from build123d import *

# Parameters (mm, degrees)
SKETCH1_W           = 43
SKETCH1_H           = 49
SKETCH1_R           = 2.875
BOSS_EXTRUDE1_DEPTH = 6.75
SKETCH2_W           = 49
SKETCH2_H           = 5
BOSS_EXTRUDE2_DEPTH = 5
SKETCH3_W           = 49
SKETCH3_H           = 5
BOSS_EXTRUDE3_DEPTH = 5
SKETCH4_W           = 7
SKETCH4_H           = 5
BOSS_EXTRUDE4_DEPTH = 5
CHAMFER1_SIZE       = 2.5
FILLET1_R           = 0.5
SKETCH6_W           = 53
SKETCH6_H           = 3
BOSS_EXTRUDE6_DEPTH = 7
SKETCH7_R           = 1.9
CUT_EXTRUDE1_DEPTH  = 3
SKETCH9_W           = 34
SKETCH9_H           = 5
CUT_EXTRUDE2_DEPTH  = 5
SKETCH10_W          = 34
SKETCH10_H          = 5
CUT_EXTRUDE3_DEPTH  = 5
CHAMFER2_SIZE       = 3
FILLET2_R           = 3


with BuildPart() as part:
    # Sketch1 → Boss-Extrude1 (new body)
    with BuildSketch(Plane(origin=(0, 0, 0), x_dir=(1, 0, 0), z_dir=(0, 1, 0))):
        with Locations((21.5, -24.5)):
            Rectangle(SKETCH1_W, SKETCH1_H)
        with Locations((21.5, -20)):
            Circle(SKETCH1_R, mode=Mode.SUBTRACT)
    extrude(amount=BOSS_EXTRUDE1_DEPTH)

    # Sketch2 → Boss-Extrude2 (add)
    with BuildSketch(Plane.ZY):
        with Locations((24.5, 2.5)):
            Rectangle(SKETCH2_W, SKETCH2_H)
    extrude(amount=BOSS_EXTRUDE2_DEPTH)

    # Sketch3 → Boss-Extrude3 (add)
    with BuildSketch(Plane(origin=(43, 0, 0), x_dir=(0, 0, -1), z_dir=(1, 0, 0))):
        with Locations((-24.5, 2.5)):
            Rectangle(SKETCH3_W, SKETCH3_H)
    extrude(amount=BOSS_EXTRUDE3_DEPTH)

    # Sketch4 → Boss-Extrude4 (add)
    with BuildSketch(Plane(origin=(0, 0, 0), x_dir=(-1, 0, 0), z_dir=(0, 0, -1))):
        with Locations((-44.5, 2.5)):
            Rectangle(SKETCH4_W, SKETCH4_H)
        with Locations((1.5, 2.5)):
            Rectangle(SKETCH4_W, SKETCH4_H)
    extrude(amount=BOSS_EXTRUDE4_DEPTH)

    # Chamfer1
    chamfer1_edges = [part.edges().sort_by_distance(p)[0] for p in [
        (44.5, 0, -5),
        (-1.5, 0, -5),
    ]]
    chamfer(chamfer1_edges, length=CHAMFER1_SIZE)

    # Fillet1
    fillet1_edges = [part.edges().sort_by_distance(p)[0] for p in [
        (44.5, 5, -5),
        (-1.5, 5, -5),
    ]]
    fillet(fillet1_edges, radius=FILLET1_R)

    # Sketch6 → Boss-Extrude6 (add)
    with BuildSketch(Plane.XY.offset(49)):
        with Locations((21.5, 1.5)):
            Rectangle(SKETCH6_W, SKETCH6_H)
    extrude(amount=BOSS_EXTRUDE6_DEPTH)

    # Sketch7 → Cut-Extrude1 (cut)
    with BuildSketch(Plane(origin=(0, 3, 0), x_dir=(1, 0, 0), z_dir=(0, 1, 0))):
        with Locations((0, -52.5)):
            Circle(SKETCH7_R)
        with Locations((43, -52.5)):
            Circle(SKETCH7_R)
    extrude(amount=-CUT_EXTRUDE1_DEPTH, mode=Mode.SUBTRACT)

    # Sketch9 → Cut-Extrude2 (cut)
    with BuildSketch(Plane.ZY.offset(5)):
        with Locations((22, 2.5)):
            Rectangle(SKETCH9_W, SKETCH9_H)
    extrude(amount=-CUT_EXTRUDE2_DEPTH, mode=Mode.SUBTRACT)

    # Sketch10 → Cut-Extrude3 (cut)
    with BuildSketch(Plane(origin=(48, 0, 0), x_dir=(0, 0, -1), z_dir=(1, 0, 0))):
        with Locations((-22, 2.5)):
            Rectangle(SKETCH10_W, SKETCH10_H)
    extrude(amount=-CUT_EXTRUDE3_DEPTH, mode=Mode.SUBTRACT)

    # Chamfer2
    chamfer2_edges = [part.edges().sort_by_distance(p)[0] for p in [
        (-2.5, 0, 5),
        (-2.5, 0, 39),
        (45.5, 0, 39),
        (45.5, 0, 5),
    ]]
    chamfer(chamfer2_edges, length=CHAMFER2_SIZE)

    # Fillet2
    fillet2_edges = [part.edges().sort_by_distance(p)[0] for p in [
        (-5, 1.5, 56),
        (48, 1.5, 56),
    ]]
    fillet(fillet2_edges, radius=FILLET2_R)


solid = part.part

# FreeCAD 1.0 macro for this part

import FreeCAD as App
import Part
import Sketcher


def edges_at(feature, points):
    """Names of the edges that pass closest to the given points."""
    edges = feature.Shape.Edges
    near = lambda p: min(range(len(edges)), key=lambda i: edges[i].distToShape(Part.Vertex(*p))[0])
    return sorted({f"Edge{near(p) + 1}" for p in points})

doc = App.newDocument("Part")
body = doc.addObject("PartDesign::Body", "Body")

sketch1 = body.newObject("Sketcher::SketchObject", "Sketch")
sketch1.AttachmentSupport = (doc.getObject("XZ_Plane"), [""])
sketch1.MapMode = "FlatFace"
sketch1.addGeometry(Part.LineSegment(App.Vector(0, 0, 0), App.Vector(0, 49, 0)), False)
sketch1.addGeometry(Part.LineSegment(App.Vector(0, 49, 0), App.Vector(43, 49, 0)), False)
sketch1.addGeometry(Part.LineSegment(App.Vector(43, 49, 0), App.Vector(43, 0, 0)), False)
sketch1.addGeometry(Part.LineSegment(App.Vector(43, 0, 0), App.Vector(0, 0, 0)), False)
sketch1.addGeometry(Part.Circle(App.Vector(21.5, 20, 0), App.Vector(0, 0, 1), 2.9), False)
sketch1.addConstraint(Sketcher.Constraint("Coincident", 0, 2, 1, 1))
sketch1.addConstraint(Sketcher.Constraint("Coincident", 1, 2, 2, 1))
sketch1.addConstraint(Sketcher.Constraint("Coincident", 2, 2, 3, 1))
sketch1.addConstraint(Sketcher.Constraint("Coincident", 3, 2, 0, 1))
sketch1.addConstraint(Sketcher.Constraint("Vertical", 0))
sketch1.addConstraint(Sketcher.Constraint("Horizontal", 1))
sketch1.addConstraint(Sketcher.Constraint("Vertical", 2))
sketch1.addConstraint(Sketcher.Constraint("Horizontal", 3))
sketch1.addConstraint(Sketcher.Constraint("Coincident", 3, 2, -1, 1))
sketch1.addConstraint(Sketcher.Constraint("Diameter", 4, 5.75))
sketch1.addConstraint(Sketcher.Constraint("DistanceX", 1, 1, 1, 2, 43.0))
sketch1.addConstraint(Sketcher.Constraint("DistanceY", 0, 1, 0, 2, 49.0))
sketch1.addConstraint(Sketcher.Constraint("DistanceY", -1, 1, 4, 3, 20.0))
sketch1.addConstraint(Sketcher.Constraint("DistanceX", -1, 1, 4, 3, 21.5))
pad1 = body.newObject("PartDesign::Pad", "Pad")
pad1.Profile = sketch1
pad1.Length = 6.75
pad1.Reversed = True

sketch2 = body.newObject("Sketcher::SketchObject", "Sketch001")
sketch2.AttachmentSupport = (doc.getObject("YZ_Plane"), [""])
sketch2.MapMode = "FlatFace"
sketch2.addGeometry(Part.LineSegment(App.Vector(5, 0, 0), App.Vector(0, 0, 0)), False)
sketch2.addGeometry(Part.LineSegment(App.Vector(0, 0, 0), App.Vector(0, 49, 0)), False)
sketch2.addGeometry(Part.LineSegment(App.Vector(0, 49, 0), App.Vector(5, 49, 0)), False)
sketch2.addGeometry(Part.LineSegment(App.Vector(5, 49, 0), App.Vector(5, 0, 0)), False)
sketch2.addConstraint(Sketcher.Constraint("Coincident", 0, 2, 1, 1))
sketch2.addConstraint(Sketcher.Constraint("Coincident", 1, 2, 2, 1))
sketch2.addConstraint(Sketcher.Constraint("Coincident", 2, 2, 3, 1))
sketch2.addConstraint(Sketcher.Constraint("Coincident", 3, 2, 0, 1))
sketch2.addConstraint(Sketcher.Constraint("Horizontal", 0))
sketch2.addConstraint(Sketcher.Constraint("Vertical", 1))
sketch2.addConstraint(Sketcher.Constraint("Horizontal", 2))
sketch2.addConstraint(Sketcher.Constraint("Vertical", 3))
sketch2.addConstraint(Sketcher.Constraint("Coincident", 0, 2, -1, 1))
sketch2.addConstraint(Sketcher.Constraint("DistanceX", 0, 2, 0, 1, 5.0))
sketch2.addConstraint(Sketcher.Constraint("DistanceY", 1, 1, 1, 2, 49.0))
pad2 = body.newObject("PartDesign::Pad", "Pad001")
pad2.Profile = sketch2
pad2.Length = 5
pad2.Reversed = True

sketch3 = body.newObject("Sketcher::SketchObject", "Sketch002")
sketch3.AttachmentSupport = (doc.getObject("YZ_Plane"), [""])
sketch3.MapMode = "FlatFace"
sketch3.AttachmentOffset = App.Placement(App.Vector(0, 0, 43), App.Rotation())
sketch3.addGeometry(Part.LineSegment(App.Vector(5, 49, 0), App.Vector(0, 49, 0)), False)
sketch3.addGeometry(Part.LineSegment(App.Vector(0, 49, 0), App.Vector(0, 0, 0)), False)
sketch3.addGeometry(Part.LineSegment(App.Vector(0, 0, 0), App.Vector(5, 0, 0)), False)
sketch3.addGeometry(Part.LineSegment(App.Vector(5, 0, 0), App.Vector(5, 49, 0)), False)
sketch3.addConstraint(Sketcher.Constraint("Coincident", 0, 2, 1, 1))
sketch3.addConstraint(Sketcher.Constraint("Coincident", 1, 2, 2, 1))
sketch3.addConstraint(Sketcher.Constraint("Coincident", 2, 2, 3, 1))
sketch3.addConstraint(Sketcher.Constraint("Coincident", 3, 2, 0, 1))
sketch3.addConstraint(Sketcher.Constraint("Horizontal", 0))
sketch3.addConstraint(Sketcher.Constraint("Vertical", 1))
sketch3.addConstraint(Sketcher.Constraint("Horizontal", 2))
sketch3.addConstraint(Sketcher.Constraint("Vertical", 3))
sketch3.addConstraint(Sketcher.Constraint("Coincident", 1, 2, -1, 1))
sketch3.addConstraint(Sketcher.Constraint("DistanceX", 0, 2, 0, 1, 5.0))
sketch3.addConstraint(Sketcher.Constraint("DistanceY", 1, 2, 1, 1, 49.0))
pad3 = body.newObject("PartDesign::Pad", "Pad002")
pad3.Profile = sketch3
pad3.Length = 5

sketch4 = body.newObject("Sketcher::SketchObject", "Sketch003")
sketch4.AttachmentSupport = (doc.getObject("XY_Plane"), [""])
sketch4.MapMode = "FlatFace"
sketch4.addGeometry(Part.LineSegment(App.Vector(48, 5, 0), App.Vector(48, 0, 0)), False)
sketch4.addGeometry(Part.LineSegment(App.Vector(48, 0, 0), App.Vector(41, 0, 0)), False)
sketch4.addGeometry(Part.LineSegment(App.Vector(41, 0, 0), App.Vector(41, 5, 0)), False)
sketch4.addGeometry(Part.LineSegment(App.Vector(41, 5, 0), App.Vector(48, 5, 0)), False)
sketch4.addGeometry(Part.LineSegment(App.Vector(2, 5, 0), App.Vector(2, 0, 0)), False)
sketch4.addGeometry(Part.LineSegment(App.Vector(2, 0, 0), App.Vector(-5, 0, 0)), False)
sketch4.addGeometry(Part.LineSegment(App.Vector(-5, 0, 0), App.Vector(-5, 5, 0)), False)
sketch4.addGeometry(Part.LineSegment(App.Vector(-5, 5, 0), App.Vector(2, 5, 0)), False)
sketch4.addConstraint(Sketcher.Constraint("Coincident", 0, 2, 1, 1))
sketch4.addConstraint(Sketcher.Constraint("Coincident", 1, 2, 2, 1))
sketch4.addConstraint(Sketcher.Constraint("Coincident", 2, 2, 3, 1))
sketch4.addConstraint(Sketcher.Constraint("Coincident", 3, 2, 0, 1))
sketch4.addConstraint(Sketcher.Constraint("Coincident", 4, 2, 5, 1))
sketch4.addConstraint(Sketcher.Constraint("Coincident", 5, 2, 6, 1))
sketch4.addConstraint(Sketcher.Constraint("Coincident", 6, 2, 7, 1))
sketch4.addConstraint(Sketcher.Constraint("Coincident", 7, 2, 4, 1))
sketch4.addConstraint(Sketcher.Constraint("Vertical", 0))
sketch4.addConstraint(Sketcher.Constraint("Horizontal", 1))
sketch4.addConstraint(Sketcher.Constraint("Vertical", 2))
sketch4.addConstraint(Sketcher.Constraint("Horizontal", 3))
sketch4.addConstraint(Sketcher.Constraint("Vertical", 4))
sketch4.addConstraint(Sketcher.Constraint("Horizontal", 5))
sketch4.addConstraint(Sketcher.Constraint("Vertical", 6))
sketch4.addConstraint(Sketcher.Constraint("Horizontal", 7))
sketch4.addConstraint(Sketcher.Constraint("PointOnObject", 0, 2, -1))
sketch4.addConstraint(Sketcher.Constraint("PointOnObject", 4, 2, -1))
sketch4.addConstraint(Sketcher.Constraint("Horizontal", 3, 2, 6, 2))
sketch4.addConstraint(Sketcher.Constraint("Equal", 3, 5))
sketch4.addConstraint(Sketcher.Constraint("DistanceX", 1, 2, 1, 1, 7.0))
sketch4.addConstraint(Sketcher.Constraint("DistanceY", 0, 2, 0, 1, 5.0))
sketch4.addConstraint(Sketcher.Constraint("DistanceX", -1, 1, 0, 2, 48.0))
sketch4.addConstraint(Sketcher.Constraint("DistanceX", -1, 1, 4, 2, 2.0))
pad4 = body.newObject("PartDesign::Pad", "Pad003")
pad4.Profile = sketch4
pad4.Length = 5
pad4.Reversed = True
doc.recompute()

chamfer = body.newObject("PartDesign::Chamfer", "Chamfer")
chamfer.Base = (pad4, edges_at(pad4, [(44.5, 0, -5), (-1.5, 0, -5)]))
chamfer.Size = 2.5
doc.recompute()

fillet = body.newObject("PartDesign::Fillet", "Fillet")
fillet.Base = (chamfer, edges_at(chamfer, [(44.5, 5, -5), (-1.5, 5, -5)]))
fillet.Radius = 0.5

sketch5 = body.newObject("Sketcher::SketchObject", "Sketch004")
sketch5.AttachmentSupport = (doc.getObject("XY_Plane"), [""])
sketch5.MapMode = "FlatFace"
sketch5.AttachmentOffset = App.Placement(App.Vector(0, 0, 49), App.Rotation())
sketch5.addGeometry(Part.LineSegment(App.Vector(-5, 3, 0), App.Vector(-5, 0, 0)), False)
sketch5.addGeometry(Part.LineSegment(App.Vector(-5, 0, 0), App.Vector(48, 0, 0)), False)
sketch5.addGeometry(Part.LineSegment(App.Vector(48, 0, 0), App.Vector(48, 3, 0)), False)
sketch5.addGeometry(Part.LineSegment(App.Vector(48, 3, 0), App.Vector(-5, 3, 0)), False)
sketch5.addConstraint(Sketcher.Constraint("Coincident", 0, 2, 1, 1))
sketch5.addConstraint(Sketcher.Constraint("Coincident", 1, 2, 2, 1))
sketch5.addConstraint(Sketcher.Constraint("Coincident", 2, 2, 3, 1))
sketch5.addConstraint(Sketcher.Constraint("Coincident", 3, 2, 0, 1))
sketch5.addConstraint(Sketcher.Constraint("Vertical", 0))
sketch5.addConstraint(Sketcher.Constraint("Horizontal", 1))
sketch5.addConstraint(Sketcher.Constraint("Vertical", 2))
sketch5.addConstraint(Sketcher.Constraint("Horizontal", 3))
sketch5.addConstraint(Sketcher.Constraint("PointOnObject", 0, 2, -1))
sketch5.addConstraint(Sketcher.Constraint("DistanceX", 1, 1, 1, 2, 53.0))
sketch5.addConstraint(Sketcher.Constraint("DistanceY", 0, 2, 0, 1, 3.0))
sketch5.addConstraint(Sketcher.Constraint("DistanceX", 0, 2, -1, 1, 5.0))
pad5 = body.newObject("PartDesign::Pad", "Pad004")
pad5.Profile = sketch5
pad5.Length = 7

sketch6 = body.newObject("Sketcher::SketchObject", "Sketch005")
sketch6.AttachmentSupport = (doc.getObject("XZ_Plane"), [""])
sketch6.MapMode = "FlatFace"
sketch6.AttachmentOffset = App.Placement(App.Vector(0, 0, -3), App.Rotation())
sketch6.addGeometry(Part.Circle(App.Vector(0, 52.5, 0), App.Vector(0, 0, 1), 1.9), False)
sketch6.addGeometry(Part.Circle(App.Vector(43, 52.5, 0), App.Vector(0, 0, 1), 1.9), False)
sketch6.addConstraint(Sketcher.Constraint("Equal", 0, 1))
sketch6.addConstraint(Sketcher.Constraint("PointOnObject", 0, 3, -2))
sketch6.addConstraint(Sketcher.Constraint("Horizontal", 0, 3, 1, 3))
sketch6.addConstraint(Sketcher.Constraint("Diameter", 0, 3.8))
sketch6.addConstraint(Sketcher.Constraint("DistanceX", -1, 1, 1, 3, 43.0))
sketch6.addConstraint(Sketcher.Constraint("DistanceY", -1, 1, 0, 3, 52.5))
pocket1 = body.newObject("PartDesign::Pocket", "Pocket")
pocket1.Profile = sketch6
pocket1.Length = 3
pocket1.Reversed = True

sketch7 = body.newObject("Sketcher::SketchObject", "Sketch006")
sketch7.AttachmentSupport = (doc.getObject("YZ_Plane"), [""])
sketch7.MapMode = "FlatFace"
sketch7.AttachmentOffset = App.Placement(App.Vector(0, 0, -5), App.Rotation())
sketch7.addGeometry(Part.LineSegment(App.Vector(5, 5, 0), App.Vector(0, 5, 0)), False)
sketch7.addGeometry(Part.LineSegment(App.Vector(0, 5, 0), App.Vector(0, 39, 0)), False)
sketch7.addGeometry(Part.LineSegment(App.Vector(0, 39, 0), App.Vector(5, 39, 0)), False)
sketch7.addGeometry(Part.LineSegment(App.Vector(5, 39, 0), App.Vector(5, 5, 0)), False)
sketch7.addConstraint(Sketcher.Constraint("Coincident", 0, 2, 1, 1))
sketch7.addConstraint(Sketcher.Constraint("Coincident", 1, 2, 2, 1))
sketch7.addConstraint(Sketcher.Constraint("Coincident", 2, 2, 3, 1))
sketch7.addConstraint(Sketcher.Constraint("Coincident", 3, 2, 0, 1))
sketch7.addConstraint(Sketcher.Constraint("Horizontal", 0))
sketch7.addConstraint(Sketcher.Constraint("Vertical", 1))
sketch7.addConstraint(Sketcher.Constraint("Horizontal", 2))
sketch7.addConstraint(Sketcher.Constraint("Vertical", 3))
sketch7.addConstraint(Sketcher.Constraint("PointOnObject", 0, 2, -2))
sketch7.addConstraint(Sketcher.Constraint("DistanceX", 0, 2, 0, 1, 5.0))
sketch7.addConstraint(Sketcher.Constraint("DistanceY", 1, 1, 1, 2, 34.0))
sketch7.addConstraint(Sketcher.Constraint("DistanceY", -1, 1, 0, 2, 5.0))
pocket2 = body.newObject("PartDesign::Pocket", "Pocket001")
pocket2.Profile = sketch7
pocket2.Length = 5
pocket2.Reversed = True

sketch8 = body.newObject("Sketcher::SketchObject", "Sketch007")
sketch8.AttachmentSupport = (doc.getObject("YZ_Plane"), [""])
sketch8.MapMode = "FlatFace"
sketch8.AttachmentOffset = App.Placement(App.Vector(0, 0, 48), App.Rotation())
sketch8.addGeometry(Part.LineSegment(App.Vector(5, 39, 0), App.Vector(0, 39, 0)), False)
sketch8.addGeometry(Part.LineSegment(App.Vector(0, 39, 0), App.Vector(0, 5, 0)), False)
sketch8.addGeometry(Part.LineSegment(App.Vector(0, 5, 0), App.Vector(5, 5, 0)), False)
sketch8.addGeometry(Part.LineSegment(App.Vector(5, 5, 0), App.Vector(5, 39, 0)), False)
sketch8.addConstraint(Sketcher.Constraint("Coincident", 0, 2, 1, 1))
sketch8.addConstraint(Sketcher.Constraint("Coincident", 1, 2, 2, 1))
sketch8.addConstraint(Sketcher.Constraint("Coincident", 2, 2, 3, 1))
sketch8.addConstraint(Sketcher.Constraint("Coincident", 3, 2, 0, 1))
sketch8.addConstraint(Sketcher.Constraint("Horizontal", 0))
sketch8.addConstraint(Sketcher.Constraint("Vertical", 1))
sketch8.addConstraint(Sketcher.Constraint("Horizontal", 2))
sketch8.addConstraint(Sketcher.Constraint("Vertical", 3))
sketch8.addConstraint(Sketcher.Constraint("PointOnObject", 0, 2, -2))
sketch8.addConstraint(Sketcher.Constraint("DistanceX", 0, 2, 0, 1, 5.0))
sketch8.addConstraint(Sketcher.Constraint("DistanceY", 1, 2, 1, 1, 34.0))
sketch8.addConstraint(Sketcher.Constraint("DistanceY", -1, 1, 0, 2, 39.0))
pocket3 = body.newObject("PartDesign::Pocket", "Pocket002")
pocket3.Profile = sketch8
pocket3.Length = 5
doc.recompute()

chamfer2 = body.newObject("PartDesign::Chamfer", "Chamfer001")
chamfer2.Base = (pocket3, edges_at(pocket3, [
    (-2.5, 0, 5),
    (-2.5, 0, 39),
    (45.5, 0, 39),
    (45.5, 0, 5),
]))
chamfer2.Size = 3
doc.recompute()

fillet2 = body.newObject("PartDesign::Fillet", "Fillet001")
fillet2.Base = (chamfer2, edges_at(chamfer2, [(-5, 1.5, 56), (48, 1.5, 56)]))
fillet2.Radius = 3

doc.recompute()
